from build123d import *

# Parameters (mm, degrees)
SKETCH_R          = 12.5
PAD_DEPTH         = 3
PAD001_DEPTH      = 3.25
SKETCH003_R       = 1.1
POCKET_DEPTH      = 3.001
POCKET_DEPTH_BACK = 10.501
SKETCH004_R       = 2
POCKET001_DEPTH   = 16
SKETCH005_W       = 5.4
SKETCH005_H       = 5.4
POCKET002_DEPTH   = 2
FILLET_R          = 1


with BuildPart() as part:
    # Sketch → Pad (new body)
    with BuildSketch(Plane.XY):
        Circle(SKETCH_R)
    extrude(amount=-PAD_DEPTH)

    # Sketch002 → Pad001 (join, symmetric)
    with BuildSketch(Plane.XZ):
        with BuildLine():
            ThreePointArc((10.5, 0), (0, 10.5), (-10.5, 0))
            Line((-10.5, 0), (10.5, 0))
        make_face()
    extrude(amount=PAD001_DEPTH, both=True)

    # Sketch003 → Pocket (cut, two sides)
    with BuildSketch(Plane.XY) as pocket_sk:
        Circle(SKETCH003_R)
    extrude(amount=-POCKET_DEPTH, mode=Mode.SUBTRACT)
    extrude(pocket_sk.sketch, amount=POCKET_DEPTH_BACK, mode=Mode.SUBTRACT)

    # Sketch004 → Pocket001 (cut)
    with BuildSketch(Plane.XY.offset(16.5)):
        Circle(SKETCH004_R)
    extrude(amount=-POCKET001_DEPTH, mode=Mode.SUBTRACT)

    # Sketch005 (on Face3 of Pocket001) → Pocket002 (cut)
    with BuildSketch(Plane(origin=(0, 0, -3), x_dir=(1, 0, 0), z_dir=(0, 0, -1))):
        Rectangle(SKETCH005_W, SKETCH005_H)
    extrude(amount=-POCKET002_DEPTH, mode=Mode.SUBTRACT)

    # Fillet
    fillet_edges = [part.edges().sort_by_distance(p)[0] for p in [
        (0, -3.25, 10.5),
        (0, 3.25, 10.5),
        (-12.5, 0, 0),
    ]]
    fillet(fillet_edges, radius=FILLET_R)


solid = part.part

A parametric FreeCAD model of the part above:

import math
import FreeCAD as App
import Part
import Sketcher

V = App.Vector


def edges_at(feature, points):
    """Names of the edges that pass closest to the given points."""
    edges = feature.Shape.Edges
    near = lambda p: min(range(len(edges)), key=lambda i: edges[i].distToShape(Part.Vertex(*p))[0])
    return sorted({f"Edge{near(p) + 1}" for p in points})


def add_polygon(sketch, points):
    """Adds a closed chain of lines whose ends are joined by coincident constraints."""
    first, n = sketch.GeometryCount, len(points)
    for a, b in zip(points, points[1:] + points[:1]):
        sketch.addGeometry(Part.LineSegment(App.Vector(*a, 0), App.Vector(*b, 0)), False)
    for i in range(n):
        sketch.addConstraint(Sketcher.Constraint("Coincident", first + i, 2, first + (i + 1) % n, 1))

doc = App.newDocument("Part")
params = doc.addObject("Spreadsheet::Sheet", "Params")
for row, (alias, value) in enumerate([
    ("sketch1_diameter", "25 mm"),
    ("pad1_length", "3 mm"),
    ("sketch2_radius", "10.5 mm"),
    ("pad2_length", "6.5 mm"),
    ("sketch3_diameter", "2.2 mm"),
    ("sketch4_diameter", "4 mm"),
    ("pocket2_length", "16 mm"),
    ("sketch5_width", "5.4 mm"),
    ("pocket3_length", "2 mm"),
    ("fillet_radius", "1 mm"),
], start=1):
    params.set(f"A{row}", alias)
    params.set(f"B{row}", "=" + value)
    params.setAlias(f"B{row}", alias)

body = doc.addObject("PartDesign::Body", "Body")

# Sketch on XY plane
sketch1 = body.newObject("Sketcher::SketchObject", "Sketch")
sketch1.AttachmentSupport = (doc.getObject("XY_Plane"), [""])
sketch1.MapMode = "FlatFace"
sketch1.addGeometry(Part.Circle(V(0, 0, 0), V(0, 0, 1), 12), False)
sketch1.addConstraint(Sketcher.Constraint("Coincident", 0, 3, -1, 1))
sketch1.addConstraint(Sketcher.Constraint("Diameter", 0, 25.0))
sketch1.setExpression("Constraints[1]", "Params.sketch1_diameter")
pad1 = body.newObject("PartDesign::Pad", "Pad")
pad1.Profile = sketch1
pad1.setExpression("Length", "Params.pad1_length")
pad1.Reversed = True

# Sketch on XZ plane
sketch2 = body.newObject("Sketcher::SketchObject", "Sketch001")
sketch2.AttachmentSupport = (doc.getObject("XZ_Plane"), [""])
sketch2.MapMode = "FlatFace"
sketch2.addGeometry(Part.ArcOfCircle(Part.Circle(V(0, 0, 0), V(0, 0, 1), 10), math.radians(0), math.radians(180)), False)
sketch2.addGeometry(Part.LineSegment(V(-10, 0, 0), V(10, 0, 0)), False)
sketch2.addConstraint(Sketcher.Constraint("Coincident", 0, 1, 1, 2))
sketch2.addConstraint(Sketcher.Constraint("Coincident", 1, 1, 0, 2))
sketch2.addConstraint(Sketcher.Constraint("Horizontal", 1))
sketch2.addConstraint(Sketcher.Constraint("Coincident", 0, 3, -1, 1))
sketch2.addConstraint(Sketcher.Constraint("PointOnObject", 0, 1, -1))
sketch2.addConstraint(Sketcher.Constraint("Radius", 0, 10.5))
sketch2.setExpression("Constraints[5]", "Params.sketch2_radius")
pad2 = body.newObject("PartDesign::Pad", "Pad001")
pad2.Profile = sketch2
pad2.setExpression("Length", "Params.pad2_length")
pad2.Midplane = True

# Sketch on XY plane
sketch3 = body.newObject("Sketcher::SketchObject", "Sketch002")
sketch3.AttachmentSupport = (doc.getObject("XY_Plane"), [""])
sketch3.MapMode = "FlatFace"
sketch3.addGeometry(Part.Circle(V(0, 0, 0), V(0, 0, 1), 1.1), False)
sketch3.addConstraint(Sketcher.Constraint("Coincident", 0, 3, -1, 1))
sketch3.addConstraint(Sketcher.Constraint("Diameter", 0, 2.2))
sketch3.setExpression("Constraints[1]", "Params.sketch3_diameter")
pocket1 = body.newObject("PartDesign::Pocket", "Pocket")
pocket1.Profile = sketch3
pocket1.Type = "ThroughAll"
pocket1.Midplane = True

# Sketch on XY plane
sketch4 = body.newObject("Sketcher::SketchObject", "Sketch003")
sketch4.AttachmentSupport = (doc.getObject("XY_Plane"), [""])
sketch4.MapMode = "FlatFace"
sketch4.AttachmentOffset = App.Placement(V(0, 0, 16.5), App.Rotation())
sketch4.addGeometry(Part.Circle(V(0, 0, 0), V(0, 0, 1), 2), False)
sketch4.addConstraint(Sketcher.Constraint("Coincident", 0, 3, -1, 1))
sketch4.addConstraint(Sketcher.Constraint("Diameter", 0, 4.0))
sketch4.setExpression("Constraints[1]", "Params.sketch4_diameter")
pocket2 = body.newObject("PartDesign::Pocket", "Pocket001")
pocket2.Profile = sketch4
pocket2.setExpression("Length", "Params.pocket2_length")

# Sketch on XY plane
sketch5 = body.newObject("Sketcher::SketchObject", "Sketch004")
sketch5.AttachmentSupport = (doc.getObject("XY_Plane"), [""])
sketch5.MapMode = "FlatFace"
sketch5.AttachmentOffset = App.Placement(V(0, 0, -3), App.Rotation())
add_polygon(sketch5, [(-3, -3), (-3, 3), (3, 3), (3, -3)])  # lines 0-3
sketch5.addConstraint(Sketcher.Constraint("Vertical", 0))
sketch5.addConstraint(Sketcher.Constraint("Horizontal", 1))
sketch5.addConstraint(Sketcher.Constraint("Vertical", 2))
sketch5.addConstraint(Sketcher.Constraint("Horizontal", 3))
sketch5.addConstraint(Sketcher.Constraint("Symmetric", 0, 2, 2, 2, -1, 1))
sketch5.addConstraint(Sketcher.Constraint("Equal", 3, 0))
sketch5.addConstraint(Sketcher.Constraint("DistanceX", 1, 1, 1, 2, 5.4))
sketch5.setExpression("Constraints[10]", "Params.sketch5_width")
pocket3 = body.newObject("PartDesign::Pocket", "Pocket002")
pocket3.Profile = sketch5
pocket3.setExpression("Length", "Params.pocket3_length")
pocket3.Reversed = True
doc.recompute()

fillet = body.newObject("PartDesign::Fillet", "Fillet")
fillet.Base = (pocket3, edges_at(pocket3, [(0, -3.25, 10.5), (0, 3.25, 10.5), (-12.5, 0, 0)]))
fillet.setExpression("Radius", "Params.fillet_radius")

doc.recompute()
